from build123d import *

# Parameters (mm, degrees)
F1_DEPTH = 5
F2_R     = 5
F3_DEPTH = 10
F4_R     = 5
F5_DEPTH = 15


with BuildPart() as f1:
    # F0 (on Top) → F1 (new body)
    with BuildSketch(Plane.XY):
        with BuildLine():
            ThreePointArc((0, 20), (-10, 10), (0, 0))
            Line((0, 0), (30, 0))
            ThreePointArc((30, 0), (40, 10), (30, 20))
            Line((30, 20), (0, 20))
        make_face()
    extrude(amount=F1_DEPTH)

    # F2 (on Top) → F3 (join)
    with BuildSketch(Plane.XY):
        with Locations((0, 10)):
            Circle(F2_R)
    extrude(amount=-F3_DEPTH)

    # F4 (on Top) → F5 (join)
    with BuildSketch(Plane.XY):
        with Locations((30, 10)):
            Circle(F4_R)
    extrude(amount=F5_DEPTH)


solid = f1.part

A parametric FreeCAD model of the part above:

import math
import FreeCAD as App
import Part
import Sketcher

doc = App.newDocument("Part")
body = doc.addObject("PartDesign::Body", "Body")

# Sketch on XY plane
sketch1 = body.newObject("Sketcher::SketchObject", "Sketch")
sketch1.AttachmentSupport = (doc.getObject("XY_Plane"), [""])
sketch1.MapMode = "FlatFace"
sketch1.addGeometry(Part.ArcOfCircle(Part.Circle(App.Vector(0, 10, 0), App.Vector(0, 0, 1), 10), math.radians(90), math.radians(270)), False)
sketch1.addGeometry(Part.LineSegment(App.Vector(0, 0, 0), App.Vector(30, 0, 0)), False)
sketch1.addGeometry(Part.ArcOfCircle(Part.Circle(App.Vector(30, 10, 0), App.Vector(0, 0, 1), 10), math.radians(-90), math.radians(90)), False)
sketch1.addGeometry(Part.LineSegment(App.Vector(30, 20, 0), App.Vector(0, 20, 0)), False)
sketch1.addConstraint(Sketcher.Constraint("Tangent", 0, 2, 1, 1))
sketch1.addConstraint(Sketcher.Constraint("Tangent", 1, 2, 2, 1))
sketch1.addConstraint(Sketcher.Constraint("Tangent", 2, 2, 3, 1))
sketch1.addConstraint(Sketcher.Constraint("Tangent", 3, 2, 0, 1))
sketch1.addConstraint(Sketcher.Constraint("Horizontal", 1))
sketch1.addConstraint(Sketcher.Constraint("Horizontal", 3))
sketch1.addConstraint(Sketcher.Constraint("Coincident", 0, 2, -1, 1))
sketch1.addConstraint(Sketcher.Constraint("Radius", 0, 10.0))
sketch1.addConstraint(Sketcher.Constraint("DistanceX", 1, 1, 1, 2, 30.0))
pad1 = body.newObject("PartDesign::Pad", "Pad")
pad1.Profile = sketch1
pad1.Length = 5

# Sketch on XY plane
sketch2 = body.newObject("Sketcher::SketchObject", "Sketch001")
sketch2.AttachmentSupport = (doc.getObject("XY_Plane"), [""])
sketch2.MapMode = "FlatFace"
sketch2.addGeometry(Part.Circle(App.Vector(0, 10, 0), App.Vector(0, 0, 1), 5), False)
sketch2.addConstraint(Sketcher.Constraint("PointOnObject", 0, 3, -2))
sketch2.addConstraint(Sketcher.Constraint("Diameter", 0, 10.0))
sketch2.addConstraint(Sketcher.Constraint("DistanceY", -1, 1, 0, 3, 10.0))
pad2 = body.newObject("PartDesign::Pad", "Pad001")
pad2.Profile = sketch2
pad2.Length = 10
pad2.Reversed = True

# Sketch on XY plane
sketch3 = body.newObject("Sketcher::SketchObject", "Sketch002")
sketch3.AttachmentSupport = (doc.getObject("XY_Plane"), [""])
sketch3.MapMode = "FlatFace"
sketch3.addGeometry(Part.Circle(App.Vector(30, 10, 0), App.Vector(0, 0, 1), 5), False)
sketch3.addConstraint(Sketcher.Constraint("Diameter", 0, 10.0))
sketch3.addConstraint(Sketcher.Constraint("DistanceX", -1, 1, 0, 3, 30.0))
sketch3.addConstraint(Sketcher.Constraint("DistanceY", -1, 1, 0, 3, 10.0))
pad3 = body.newObject("PartDesign::Pad", "Pad002")
pad3.Profile = sketch3
pad3.Length = 15

doc.recompute()
